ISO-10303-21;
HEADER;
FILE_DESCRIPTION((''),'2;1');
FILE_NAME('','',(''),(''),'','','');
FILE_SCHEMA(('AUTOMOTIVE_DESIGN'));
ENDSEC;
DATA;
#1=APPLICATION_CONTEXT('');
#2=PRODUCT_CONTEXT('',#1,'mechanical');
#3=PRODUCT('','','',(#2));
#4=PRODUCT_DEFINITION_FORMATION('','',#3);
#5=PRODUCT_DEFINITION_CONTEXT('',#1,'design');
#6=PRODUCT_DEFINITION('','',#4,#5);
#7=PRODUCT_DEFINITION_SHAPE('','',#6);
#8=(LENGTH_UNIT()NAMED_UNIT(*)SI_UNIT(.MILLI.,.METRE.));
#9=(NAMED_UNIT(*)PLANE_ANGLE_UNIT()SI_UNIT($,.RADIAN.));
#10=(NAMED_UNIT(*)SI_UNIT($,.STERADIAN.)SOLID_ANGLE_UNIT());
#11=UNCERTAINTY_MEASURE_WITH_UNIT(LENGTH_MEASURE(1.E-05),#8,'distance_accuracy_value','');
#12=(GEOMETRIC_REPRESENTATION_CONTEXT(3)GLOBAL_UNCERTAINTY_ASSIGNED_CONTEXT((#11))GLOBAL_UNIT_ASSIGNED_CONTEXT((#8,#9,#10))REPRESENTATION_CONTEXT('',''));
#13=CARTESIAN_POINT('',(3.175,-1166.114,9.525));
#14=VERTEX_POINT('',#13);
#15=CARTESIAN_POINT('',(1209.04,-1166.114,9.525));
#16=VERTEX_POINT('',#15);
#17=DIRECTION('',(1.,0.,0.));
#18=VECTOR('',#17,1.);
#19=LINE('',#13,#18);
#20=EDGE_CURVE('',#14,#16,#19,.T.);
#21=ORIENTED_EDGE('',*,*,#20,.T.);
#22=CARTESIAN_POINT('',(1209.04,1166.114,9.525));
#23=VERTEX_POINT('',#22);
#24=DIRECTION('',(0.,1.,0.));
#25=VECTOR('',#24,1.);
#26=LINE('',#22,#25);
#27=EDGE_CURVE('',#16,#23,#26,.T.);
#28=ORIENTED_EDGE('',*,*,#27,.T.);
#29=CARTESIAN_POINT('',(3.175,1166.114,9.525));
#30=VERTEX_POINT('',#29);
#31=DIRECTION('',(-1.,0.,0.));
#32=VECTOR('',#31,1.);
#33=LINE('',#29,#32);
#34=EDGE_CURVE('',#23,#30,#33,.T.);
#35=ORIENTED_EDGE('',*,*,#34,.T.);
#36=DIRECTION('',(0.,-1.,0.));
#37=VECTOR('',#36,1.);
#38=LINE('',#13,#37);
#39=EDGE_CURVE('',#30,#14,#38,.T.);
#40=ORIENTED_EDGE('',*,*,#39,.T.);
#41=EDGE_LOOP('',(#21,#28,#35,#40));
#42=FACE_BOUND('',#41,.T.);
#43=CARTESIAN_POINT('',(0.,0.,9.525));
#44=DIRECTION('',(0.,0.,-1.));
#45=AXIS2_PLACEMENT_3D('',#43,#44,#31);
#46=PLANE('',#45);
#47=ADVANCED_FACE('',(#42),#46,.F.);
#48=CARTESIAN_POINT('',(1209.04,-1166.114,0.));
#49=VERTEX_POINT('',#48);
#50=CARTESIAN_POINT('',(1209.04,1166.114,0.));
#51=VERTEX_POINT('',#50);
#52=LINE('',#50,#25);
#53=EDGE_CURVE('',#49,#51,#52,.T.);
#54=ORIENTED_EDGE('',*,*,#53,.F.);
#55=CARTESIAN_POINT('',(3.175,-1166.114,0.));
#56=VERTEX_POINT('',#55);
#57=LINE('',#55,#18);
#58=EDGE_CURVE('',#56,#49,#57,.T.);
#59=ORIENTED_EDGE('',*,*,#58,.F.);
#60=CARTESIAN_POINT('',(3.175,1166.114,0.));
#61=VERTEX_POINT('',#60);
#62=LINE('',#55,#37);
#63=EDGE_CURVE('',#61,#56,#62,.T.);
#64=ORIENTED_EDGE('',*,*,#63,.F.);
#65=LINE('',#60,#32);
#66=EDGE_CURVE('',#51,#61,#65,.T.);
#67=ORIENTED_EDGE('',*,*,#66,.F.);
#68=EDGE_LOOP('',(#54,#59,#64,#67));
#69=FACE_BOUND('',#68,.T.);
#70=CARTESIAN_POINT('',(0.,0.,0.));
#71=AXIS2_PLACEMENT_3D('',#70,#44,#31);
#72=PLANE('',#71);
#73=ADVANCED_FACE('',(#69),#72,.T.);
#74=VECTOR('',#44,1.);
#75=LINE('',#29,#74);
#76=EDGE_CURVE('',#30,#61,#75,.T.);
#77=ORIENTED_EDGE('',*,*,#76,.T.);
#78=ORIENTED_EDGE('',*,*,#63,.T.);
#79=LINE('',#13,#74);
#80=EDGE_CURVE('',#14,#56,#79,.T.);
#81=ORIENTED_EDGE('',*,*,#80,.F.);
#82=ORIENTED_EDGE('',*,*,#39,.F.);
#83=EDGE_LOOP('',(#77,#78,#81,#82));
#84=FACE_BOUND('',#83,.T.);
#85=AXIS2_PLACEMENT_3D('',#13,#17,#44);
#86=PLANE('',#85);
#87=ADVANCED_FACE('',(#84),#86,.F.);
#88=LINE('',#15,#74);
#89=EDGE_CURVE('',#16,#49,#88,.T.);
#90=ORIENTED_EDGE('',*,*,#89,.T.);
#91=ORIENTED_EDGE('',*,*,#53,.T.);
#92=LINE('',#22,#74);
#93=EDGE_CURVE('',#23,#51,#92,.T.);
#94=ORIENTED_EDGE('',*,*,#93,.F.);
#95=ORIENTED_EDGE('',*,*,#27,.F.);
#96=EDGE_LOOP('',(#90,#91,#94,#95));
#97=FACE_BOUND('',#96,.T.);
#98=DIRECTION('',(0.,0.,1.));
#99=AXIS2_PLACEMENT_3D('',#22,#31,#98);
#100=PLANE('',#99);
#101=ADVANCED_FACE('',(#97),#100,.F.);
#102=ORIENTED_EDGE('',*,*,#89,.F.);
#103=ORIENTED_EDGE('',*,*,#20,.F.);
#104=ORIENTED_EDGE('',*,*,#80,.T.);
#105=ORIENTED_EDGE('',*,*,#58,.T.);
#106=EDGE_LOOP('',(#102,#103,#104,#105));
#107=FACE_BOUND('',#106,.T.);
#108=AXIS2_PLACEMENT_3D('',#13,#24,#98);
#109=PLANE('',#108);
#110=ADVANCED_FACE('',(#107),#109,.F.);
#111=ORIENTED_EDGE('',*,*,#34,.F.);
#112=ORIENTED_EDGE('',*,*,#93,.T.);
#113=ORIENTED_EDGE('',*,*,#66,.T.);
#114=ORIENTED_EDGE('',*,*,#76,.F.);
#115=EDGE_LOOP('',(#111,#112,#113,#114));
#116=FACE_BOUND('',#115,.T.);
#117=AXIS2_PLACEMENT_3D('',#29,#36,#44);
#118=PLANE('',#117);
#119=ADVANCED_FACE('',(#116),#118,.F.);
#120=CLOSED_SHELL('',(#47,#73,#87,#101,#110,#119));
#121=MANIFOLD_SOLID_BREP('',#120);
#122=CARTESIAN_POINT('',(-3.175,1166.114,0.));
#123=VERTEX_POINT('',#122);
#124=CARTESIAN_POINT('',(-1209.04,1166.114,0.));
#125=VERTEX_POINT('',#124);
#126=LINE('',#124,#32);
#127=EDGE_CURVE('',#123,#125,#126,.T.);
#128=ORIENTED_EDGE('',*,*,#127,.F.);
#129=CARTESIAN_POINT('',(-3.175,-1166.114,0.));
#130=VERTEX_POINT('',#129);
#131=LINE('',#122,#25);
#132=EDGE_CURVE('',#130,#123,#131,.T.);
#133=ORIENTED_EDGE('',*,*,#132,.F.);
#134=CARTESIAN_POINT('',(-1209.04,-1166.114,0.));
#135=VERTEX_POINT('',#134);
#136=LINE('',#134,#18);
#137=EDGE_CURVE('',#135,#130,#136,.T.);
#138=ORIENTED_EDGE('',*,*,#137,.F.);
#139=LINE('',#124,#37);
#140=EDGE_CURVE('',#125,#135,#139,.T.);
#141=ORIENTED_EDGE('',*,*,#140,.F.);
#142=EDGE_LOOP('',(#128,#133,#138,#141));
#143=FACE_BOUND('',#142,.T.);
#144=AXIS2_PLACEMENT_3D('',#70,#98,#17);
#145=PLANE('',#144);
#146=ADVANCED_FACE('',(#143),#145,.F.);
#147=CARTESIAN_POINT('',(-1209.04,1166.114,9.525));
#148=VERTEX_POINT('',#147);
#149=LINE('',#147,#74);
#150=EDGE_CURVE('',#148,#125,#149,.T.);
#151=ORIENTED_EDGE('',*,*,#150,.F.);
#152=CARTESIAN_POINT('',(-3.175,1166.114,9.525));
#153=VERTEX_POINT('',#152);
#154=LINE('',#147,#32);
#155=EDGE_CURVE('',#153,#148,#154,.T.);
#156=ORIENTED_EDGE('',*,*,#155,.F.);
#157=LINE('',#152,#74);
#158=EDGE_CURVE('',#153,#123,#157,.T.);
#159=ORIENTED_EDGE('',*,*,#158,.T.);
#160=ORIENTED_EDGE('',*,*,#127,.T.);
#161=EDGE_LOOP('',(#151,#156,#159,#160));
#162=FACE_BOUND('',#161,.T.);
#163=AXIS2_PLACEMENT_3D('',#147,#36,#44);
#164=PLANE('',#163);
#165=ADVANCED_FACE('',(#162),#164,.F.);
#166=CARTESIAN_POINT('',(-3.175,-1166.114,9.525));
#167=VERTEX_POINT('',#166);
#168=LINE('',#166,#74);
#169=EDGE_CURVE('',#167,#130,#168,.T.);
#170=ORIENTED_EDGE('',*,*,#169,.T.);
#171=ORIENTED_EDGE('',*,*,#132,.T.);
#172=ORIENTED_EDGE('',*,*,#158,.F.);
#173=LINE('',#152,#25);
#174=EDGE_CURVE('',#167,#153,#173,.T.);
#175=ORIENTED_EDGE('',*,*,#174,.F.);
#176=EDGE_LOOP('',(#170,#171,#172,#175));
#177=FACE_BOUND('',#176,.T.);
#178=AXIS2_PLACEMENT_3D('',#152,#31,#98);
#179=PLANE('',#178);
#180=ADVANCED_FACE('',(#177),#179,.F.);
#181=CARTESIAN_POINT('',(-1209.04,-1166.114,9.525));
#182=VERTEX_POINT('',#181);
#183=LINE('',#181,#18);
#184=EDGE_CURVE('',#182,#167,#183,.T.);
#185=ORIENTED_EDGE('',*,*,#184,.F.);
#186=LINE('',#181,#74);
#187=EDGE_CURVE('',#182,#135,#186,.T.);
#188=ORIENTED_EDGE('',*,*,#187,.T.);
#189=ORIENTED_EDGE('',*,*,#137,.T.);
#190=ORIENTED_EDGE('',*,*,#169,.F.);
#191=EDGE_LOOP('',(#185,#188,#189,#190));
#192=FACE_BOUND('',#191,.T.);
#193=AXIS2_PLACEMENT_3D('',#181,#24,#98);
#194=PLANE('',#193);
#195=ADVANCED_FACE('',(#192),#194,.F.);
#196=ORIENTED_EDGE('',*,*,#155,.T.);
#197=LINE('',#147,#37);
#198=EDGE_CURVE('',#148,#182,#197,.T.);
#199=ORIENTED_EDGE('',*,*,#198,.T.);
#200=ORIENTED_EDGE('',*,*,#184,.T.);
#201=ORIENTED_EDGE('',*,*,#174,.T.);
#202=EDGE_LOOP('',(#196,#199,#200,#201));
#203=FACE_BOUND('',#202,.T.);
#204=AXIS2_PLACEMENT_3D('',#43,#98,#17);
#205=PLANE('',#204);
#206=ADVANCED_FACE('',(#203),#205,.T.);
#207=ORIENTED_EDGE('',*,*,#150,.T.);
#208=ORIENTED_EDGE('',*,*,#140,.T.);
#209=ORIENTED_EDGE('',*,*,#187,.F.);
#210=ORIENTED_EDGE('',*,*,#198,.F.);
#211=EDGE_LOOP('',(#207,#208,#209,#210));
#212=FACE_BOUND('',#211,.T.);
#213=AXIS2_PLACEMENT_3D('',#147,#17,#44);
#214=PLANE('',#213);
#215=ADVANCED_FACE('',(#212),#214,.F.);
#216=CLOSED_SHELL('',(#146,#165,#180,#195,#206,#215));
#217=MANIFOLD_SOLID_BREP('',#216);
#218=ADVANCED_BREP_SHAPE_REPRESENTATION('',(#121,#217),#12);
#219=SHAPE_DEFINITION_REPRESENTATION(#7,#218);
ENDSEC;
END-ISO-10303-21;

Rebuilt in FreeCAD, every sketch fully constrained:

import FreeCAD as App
import Part
import Sketcher
Q = App.Units.Quantity


def add_polygon(sketch, points):
    """Adds a closed chain of lines whose ends are joined by coincident constraints."""
    first, n = sketch.GeometryCount, len(points)
    for a, b in zip(points, points[1:] + points[:1]):
        sketch.addGeometry(Part.LineSegment(App.Vector(*a, 0), App.Vector(*b, 0)), False)
    for i in range(n):
        sketch.addConstraint(Sketcher.Constraint("Coincident", first + i, 2, first + (i + 1) % n, 1))

doc = App.newDocument("Part")
body = doc.addObject("PartDesign::Body", "Body")

sketch1 = body.newObject("Sketcher::SketchObject", "Sketch")
sketch1.AttachmentSupport = (doc.getObject("XY_Plane"), [""])
sketch1.MapMode = "FlatFace"
add_polygon(sketch1, [(-1209.04, 1166.114), (-1209.04, -1166.114), (-3.175, -1166.114), (-3.175, 1166.114)])
sketch1.addConstraint(Sketcher.Constraint("Vertical", 0))
sketch1.addConstraint(Sketcher.Constraint("Horizontal", 1))
sketch1.addConstraint(Sketcher.Constraint("Vertical", 2))
sketch1.addConstraint(Sketcher.Constraint("Horizontal", 3))
sketch1.addConstraint(Sketcher.Constraint("DistanceY", 0, 2, 0, 1, Q("91.82 in")))
sketch1.addConstraint(Sketcher.Constraint("DistanceX", 0, 2, -1, 1, Q("47.6 in")))
sketch1.addConstraint(Sketcher.Constraint("DistanceX", 1, 1, 1, 2, Q("47.475 in")))
sketch1.addConstraint(Sketcher.Constraint("DistanceY", 0, 2, -1, 1, Q("45.91 in")))
pad1 = body.newObject("PartDesign::Pad", "Pad")
pad1.Profile = sketch1
pad1.Length = Q("0.375 in")
body2 = doc.addObject("PartDesign::Body", "Body001")

sketch2 = body2.newObject("Sketcher::SketchObject", "Sketch001")
sketch2.AttachmentSupport = (doc.getObject("XY_Plane001"), [""])
sketch2.MapMode = "FlatFace"
add_polygon(sketch2, [(3.175, 1166.114), (3.175, -1166.114), (1209.04, -1166.114), (1209.04, 1166.114)])
sketch2.addConstraint(Sketcher.Constraint("Vertical", 0))
sketch2.addConstraint(Sketcher.Constraint("Horizontal", 1))
sketch2.addConstraint(Sketcher.Constraint("Vertical", 2))
sketch2.addConstraint(Sketcher.Constraint("Horizontal", 3))
sketch2.addConstraint(Sketcher.Constraint("DistanceY", 0, 2, 0, 1, Q("91.82 in")))
sketch2.addConstraint(Sketcher.Constraint("DistanceX", -1, 1, 1, 2, Q("47.6 in")))
sketch2.addConstraint(Sketcher.Constraint("DistanceX", 1, 1, 1, 2, Q("47.475 in")))
sketch2.addConstraint(Sketcher.Constraint("DistanceY", 0, 2, -1, 1, Q("45.91 in")))
pad2 = body2.newObject("PartDesign::Pad", "Pad001")
pad2.Profile = sketch2
pad2.Length = Q("0.375 in")

doc.recompute()
